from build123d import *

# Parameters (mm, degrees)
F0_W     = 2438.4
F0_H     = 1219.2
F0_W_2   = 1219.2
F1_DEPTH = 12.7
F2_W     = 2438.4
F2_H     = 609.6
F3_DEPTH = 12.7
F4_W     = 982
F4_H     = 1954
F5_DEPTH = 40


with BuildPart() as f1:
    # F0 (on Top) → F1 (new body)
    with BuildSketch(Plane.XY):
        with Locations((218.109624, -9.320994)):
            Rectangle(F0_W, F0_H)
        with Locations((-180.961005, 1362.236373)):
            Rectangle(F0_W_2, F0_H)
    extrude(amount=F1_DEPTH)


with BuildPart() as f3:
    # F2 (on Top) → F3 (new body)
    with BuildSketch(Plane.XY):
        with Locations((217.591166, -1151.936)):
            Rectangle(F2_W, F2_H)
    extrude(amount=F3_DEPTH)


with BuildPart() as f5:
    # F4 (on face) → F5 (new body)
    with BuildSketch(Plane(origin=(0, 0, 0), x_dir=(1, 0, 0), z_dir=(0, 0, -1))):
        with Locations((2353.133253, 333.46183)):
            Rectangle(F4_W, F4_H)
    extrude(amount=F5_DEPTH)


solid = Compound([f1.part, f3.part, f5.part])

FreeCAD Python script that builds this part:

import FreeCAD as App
import Part
import Sketcher

V = App.Vector
Q = App.Units.Quantity

doc = App.newDocument("Part")
body = doc.addObject("PartDesign::Body", "Body")
body.AllowCompound = True

# Sketch on XY plane
sketch1 = doc.addObject("Sketcher::SketchObject", "Sketch")
body.addObject(sketch1)
sketch1.AttachmentSupport = (doc.XY_Plane, [""])
sketch1.MapMode = "FlatFace"
sketch1.addGeometry([
    Part.LineSegment(V(-1001, 600, 0), V(-1001, -619, 0)),  # 0
    Part.LineSegment(V(-1001, -619, 0), V(1437, -619, 0)),  # 1
    Part.LineSegment(V(1437, -619, 0), V(1437, 600, 0)),  # 2
    Part.LineSegment(V(1437, 600, 0), V(-1001, 600, 0)),  # 3
    Part.LineSegment(V(-791, 1972, 0), V(-791, 753, 0)),  # 4
    Part.LineSegment(V(-791, 753, 0), V(429, 753, 0)),  # 5
    Part.LineSegment(V(429, 753, 0), V(429, 1972, 0)),  # 6
    Part.LineSegment(V(429, 1972, 0), V(-791, 1972, 0)),  # 7
], False)
sketch1.addConstraint([
    Sketcher.Constraint("Coincident", 0, 2, 1, 1),
    Sketcher.Constraint("Coincident", 1, 2, 2, 1),
    Sketcher.Constraint("Coincident", 2, 2, 3, 1),
    Sketcher.Constraint("Coincident", 3, 2, 0, 1),
    Sketcher.Constraint("Coincident", 4, 2, 5, 1),
    Sketcher.Constraint("Coincident", 5, 2, 6, 1),
    Sketcher.Constraint("Coincident", 6, 2, 7, 1),
    Sketcher.Constraint("Coincident", 7, 2, 4, 1),
    Sketcher.Constraint("Vertical", 0),
    Sketcher.Constraint("Horizontal", 1),
    Sketcher.Constraint("Vertical", 2),
    Sketcher.Constraint("Horizontal", 3),
    Sketcher.Constraint("Vertical", 4),
    Sketcher.Constraint("Horizontal", 5),
    Sketcher.Constraint("Vertical", 6),
    Sketcher.Constraint("Horizontal", 7),
    Sketcher.Constraint("Equal", 7, 0),
    Sketcher.Constraint("Equal", 2, 4),
    Sketcher.Constraint("DistanceX", 1, 1, 1, 2, Q("96 in")),
    Sketcher.Constraint("DistanceX", 5, 1, 5, 2, Q("48 in")),
    Sketcher.Constraint("DistanceX", 3, 2, 4, 2, 210.529371),
    Sketcher.Constraint("DistanceX", 0, 2, -1, 1, 1001.090376),
    Sketcher.Constraint("DistanceY", 0, 2, -1, 1, 618.920994),
    Sketcher.Constraint("DistanceY", -1, 1, 4, 2, 752.636373),
])
pad1 = doc.addObject("PartDesign::Pad", "Pad")
body.addObject(pad1)
pad1.Profile = sketch1
pad1.Length = Q("0.5 in")
body2 = doc.addObject("PartDesign::Body", "Body001")

# Sketch on XY plane
sketch2 = doc.addObject("Sketcher::SketchObject", "Sketch001")
body2.addObject(sketch2)
sketch2.AttachmentSupport = (doc.getObject("XY_Plane001"), [""])
sketch2.MapMode = "FlatFace"
sketch2.addGeometry([
    Part.LineSegment(V(-1002, -847, 0), V(-1002, -1457, 0)),
    Part.LineSegment(V(-1002, -1457, 0), V(1437, -1457, 0)),
    Part.LineSegment(V(1437, -1457, 0), V(1437, -847, 0)),
    Part.LineSegment(V(1437, -847, 0), V(-1002, -847, 0)),
], False)
sketch2.addConstraint([
    Sketcher.Constraint("Coincident", 0, 2, 1, 1),
    Sketcher.Constraint("Coincident", 1, 2, 2, 1),
    Sketcher.Constraint("Coincident", 2, 2, 3, 1),
    Sketcher.Constraint("Coincident", 3, 2, 0, 1),
    Sketcher.Constraint("Vertical", 0),
    Sketcher.Constraint("Horizontal", 1),
    Sketcher.Constraint("Vertical", 2),
    Sketcher.Constraint("Horizontal", 3),
    Sketcher.Constraint("DistanceX", 1, 1, 1, 2, Q("96 in")),
    Sketcher.Constraint("DistanceY", 0, 2, 0, 1, Q("24 in")),
    Sketcher.Constraint("DistanceY", 0, 2, -1, 1, 1456.736),
    Sketcher.Constraint("DistanceX", 0, 2, -1, 1, 1001.608834),
])
pad2 = doc.addObject("PartDesign::Pad", "Pad001")
body2.addObject(pad2)
pad2.Profile = sketch2
pad2.Length = Q("0.5 in")
body3 = doc.addObject("PartDesign::Body", "Body002")

# Sketch on XY plane
sketch3 = doc.addObject("Sketcher::SketchObject", "Sketch002")
body3.addObject(sketch3)
sketch3.AttachmentSupport = (doc.getObject("XY_Plane002"), [""])
sketch3.MapMode = "FlatFace"
sketch3.addGeometry([
    Part.LineSegment(V(1862, -1310, 0), V(1862, 644, 0)),
    Part.LineSegment(V(1862, 644, 0), V(2844, 644, 0)),
    Part.LineSegment(V(2844, 644, 0), V(2844, -1310, 0)),
    Part.LineSegment(V(2844, -1310, 0), V(1862, -1310, 0)),
], False)
sketch3.addConstraint([
    Sketcher.Constraint("Coincident", 0, 2, 1, 1),
    Sketcher.Constraint("Coincident", 1, 2, 2, 1),
    Sketcher.Constraint("Coincident", 2, 2, 3, 1),
    Sketcher.Constraint("Coincident", 3, 2, 0, 1),
    Sketcher.Constraint("Vertical", 0),
    Sketcher.Constraint("Horizontal", 1),
    Sketcher.Constraint("Vertical", 2),
    Sketcher.Constraint("Horizontal", 3),
    Sketcher.Constraint("DistanceX", 1, 1, 1, 2, 982.0),
    Sketcher.Constraint("DistanceY", 0, 1, 0, 2, 1954.0),
    Sketcher.Constraint("DistanceY", -1, 1, 0, 2, 643.53817),
    Sketcher.Constraint("DistanceX", -1, 1, 0, 2, 1862.133253),
])
pad3 = doc.addObject("PartDesign::Pad", "Pad002")
body3.addObject(pad3)
pad3.Profile = sketch3
pad3.Length = 40
pad3.Reversed = True

doc.recompute()
